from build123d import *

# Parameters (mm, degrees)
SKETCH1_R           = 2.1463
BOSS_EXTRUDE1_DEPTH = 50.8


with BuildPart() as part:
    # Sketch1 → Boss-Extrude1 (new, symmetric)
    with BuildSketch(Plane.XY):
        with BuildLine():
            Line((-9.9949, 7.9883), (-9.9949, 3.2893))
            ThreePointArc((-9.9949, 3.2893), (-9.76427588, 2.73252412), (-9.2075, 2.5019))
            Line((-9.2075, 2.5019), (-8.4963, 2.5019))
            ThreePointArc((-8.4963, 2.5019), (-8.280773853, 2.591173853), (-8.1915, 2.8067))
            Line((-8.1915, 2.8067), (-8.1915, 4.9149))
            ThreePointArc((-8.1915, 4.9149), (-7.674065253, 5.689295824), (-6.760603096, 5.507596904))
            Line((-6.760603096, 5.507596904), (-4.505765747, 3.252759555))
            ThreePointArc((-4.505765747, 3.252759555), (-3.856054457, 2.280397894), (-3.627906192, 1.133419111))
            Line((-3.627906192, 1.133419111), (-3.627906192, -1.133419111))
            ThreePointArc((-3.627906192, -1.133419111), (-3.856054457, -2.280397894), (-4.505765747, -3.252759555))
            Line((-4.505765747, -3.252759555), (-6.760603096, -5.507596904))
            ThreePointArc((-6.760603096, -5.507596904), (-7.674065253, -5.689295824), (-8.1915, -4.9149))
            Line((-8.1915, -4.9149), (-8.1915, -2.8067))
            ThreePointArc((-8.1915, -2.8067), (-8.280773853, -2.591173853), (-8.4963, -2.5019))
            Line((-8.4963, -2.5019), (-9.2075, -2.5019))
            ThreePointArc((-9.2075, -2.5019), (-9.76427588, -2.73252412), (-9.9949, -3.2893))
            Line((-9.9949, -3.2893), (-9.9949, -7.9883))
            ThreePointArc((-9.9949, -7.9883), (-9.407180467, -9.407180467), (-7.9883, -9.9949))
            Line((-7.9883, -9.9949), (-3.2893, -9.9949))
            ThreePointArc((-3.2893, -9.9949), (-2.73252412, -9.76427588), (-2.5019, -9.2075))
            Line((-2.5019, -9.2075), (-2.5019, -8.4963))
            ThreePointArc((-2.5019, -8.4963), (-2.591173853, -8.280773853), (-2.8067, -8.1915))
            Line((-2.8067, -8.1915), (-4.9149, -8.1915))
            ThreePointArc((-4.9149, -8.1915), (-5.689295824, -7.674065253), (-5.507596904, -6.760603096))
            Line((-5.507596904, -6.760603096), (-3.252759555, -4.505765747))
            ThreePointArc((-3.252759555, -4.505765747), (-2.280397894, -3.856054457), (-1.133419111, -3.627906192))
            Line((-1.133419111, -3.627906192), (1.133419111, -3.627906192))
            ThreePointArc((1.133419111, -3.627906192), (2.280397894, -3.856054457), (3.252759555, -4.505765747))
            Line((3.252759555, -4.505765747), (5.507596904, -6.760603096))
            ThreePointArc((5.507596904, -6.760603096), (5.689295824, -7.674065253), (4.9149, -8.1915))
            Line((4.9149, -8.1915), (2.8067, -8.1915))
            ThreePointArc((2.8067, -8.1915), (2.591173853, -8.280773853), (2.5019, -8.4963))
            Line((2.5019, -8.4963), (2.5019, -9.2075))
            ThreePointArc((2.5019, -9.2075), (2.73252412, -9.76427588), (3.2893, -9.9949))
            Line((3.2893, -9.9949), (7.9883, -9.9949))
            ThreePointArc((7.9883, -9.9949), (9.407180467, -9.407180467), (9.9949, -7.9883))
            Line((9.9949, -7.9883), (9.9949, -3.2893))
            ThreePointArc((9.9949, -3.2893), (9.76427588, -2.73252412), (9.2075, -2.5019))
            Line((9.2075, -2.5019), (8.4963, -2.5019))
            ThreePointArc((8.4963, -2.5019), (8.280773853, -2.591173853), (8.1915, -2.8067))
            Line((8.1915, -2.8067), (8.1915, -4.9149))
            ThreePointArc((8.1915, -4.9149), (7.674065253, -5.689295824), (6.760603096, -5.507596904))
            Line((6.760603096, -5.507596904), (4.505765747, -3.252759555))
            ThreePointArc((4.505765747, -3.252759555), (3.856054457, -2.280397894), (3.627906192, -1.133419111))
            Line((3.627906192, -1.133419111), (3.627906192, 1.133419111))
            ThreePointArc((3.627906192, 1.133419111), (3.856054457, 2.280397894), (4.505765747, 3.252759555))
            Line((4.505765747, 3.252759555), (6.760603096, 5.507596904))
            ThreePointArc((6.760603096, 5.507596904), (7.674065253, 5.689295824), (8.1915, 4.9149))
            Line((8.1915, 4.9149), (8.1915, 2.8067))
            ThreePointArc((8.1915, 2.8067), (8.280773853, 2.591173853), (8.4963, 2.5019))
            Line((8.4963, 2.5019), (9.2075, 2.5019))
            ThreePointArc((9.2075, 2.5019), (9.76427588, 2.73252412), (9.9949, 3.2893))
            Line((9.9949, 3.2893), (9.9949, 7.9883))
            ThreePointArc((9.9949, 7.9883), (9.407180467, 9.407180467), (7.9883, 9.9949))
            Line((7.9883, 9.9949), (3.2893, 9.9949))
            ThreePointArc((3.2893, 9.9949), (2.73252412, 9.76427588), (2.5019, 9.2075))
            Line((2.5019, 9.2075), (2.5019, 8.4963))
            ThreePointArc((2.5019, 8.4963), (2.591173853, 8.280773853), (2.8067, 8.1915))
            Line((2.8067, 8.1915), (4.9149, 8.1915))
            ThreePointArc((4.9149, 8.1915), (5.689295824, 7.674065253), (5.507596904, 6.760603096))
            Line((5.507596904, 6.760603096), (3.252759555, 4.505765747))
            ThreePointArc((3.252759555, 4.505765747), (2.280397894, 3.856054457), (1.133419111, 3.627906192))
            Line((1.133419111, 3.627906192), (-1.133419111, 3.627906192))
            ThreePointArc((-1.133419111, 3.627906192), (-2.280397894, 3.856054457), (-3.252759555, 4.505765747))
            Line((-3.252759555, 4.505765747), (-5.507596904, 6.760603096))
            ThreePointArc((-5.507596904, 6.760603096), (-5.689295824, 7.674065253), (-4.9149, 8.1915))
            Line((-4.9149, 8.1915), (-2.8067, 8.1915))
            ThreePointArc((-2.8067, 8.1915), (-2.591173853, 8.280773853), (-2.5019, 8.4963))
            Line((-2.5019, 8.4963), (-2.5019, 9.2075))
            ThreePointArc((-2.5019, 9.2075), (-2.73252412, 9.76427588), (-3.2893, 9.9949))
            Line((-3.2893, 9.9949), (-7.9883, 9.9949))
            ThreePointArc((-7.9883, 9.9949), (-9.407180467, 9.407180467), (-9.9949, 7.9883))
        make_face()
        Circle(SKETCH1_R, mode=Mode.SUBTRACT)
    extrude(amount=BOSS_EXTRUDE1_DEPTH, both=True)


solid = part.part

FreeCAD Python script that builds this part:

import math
import FreeCAD as App
import Part
import Sketcher

V = App.Vector
Q = App.Units.Quantity

doc = App.newDocument("Part")
params = doc.addObject("Spreadsheet::Sheet", "Params")
for row, (alias, value) in enumerate([
    ("sketch1_diameter", "0.169 in"),
    ("sketch1_radius", "0.031 in"),
    ("sketch1_radius2", "0.012 in"),
    ("sketch1_radius3", "0.033 in"),
    ("sketch1_radius4", "0.118 in"),
    ("pad1_length", "4 in"),
], start=1):
    params.set(f"A{row}", alias)
    params.set(f"B{row}", "=" + value)
    params.setAlias(f"B{row}", alias)

body = doc.addObject("PartDesign::Body", "Body")

# Sketch on XY plane
sketch1 = body.newObject("Sketcher::SketchObject", "Sketch")
sketch1.AttachmentSupport = (doc.getObject("XY_Plane"), [""])
sketch1.MapMode = "FlatFace"
sketch1.addGeometry(Part.LineSegment(V(-9.9949, 7.9883, 0), V(-9.9949, 3.2893, 0)), False)
sketch1.addGeometry(Part.ArcOfCircle(Part.Circle(V(-9.2075, 3.2893, 0), V(0, 0, 1), 0.7874), math.radians(180), math.radians(270)), False)
sketch1.addGeometry(Part.LineSegment(V(-9.2075, 2.5019, 0), V(-8.4963, 2.5019, 0)), False)
sketch1.addGeometry(Part.ArcOfCircle(Part.Circle(V(-8.4963, 2.8067, 0), V(0, 0, 1), 0.3048), math.radians(-90), math.radians(0)), False)
sketch1.addGeometry(Part.LineSegment(V(-8.1915, 2.8067, 0), V(-8.1915, 4.9149, 0)), False)
sketch1.addGeometry(Part.ArcOfCircle(Part.Circle(V(-7.3533, 4.9149, 0), V(0, 0, 1), 0.8382), math.radians(45), math.radians(180)), False)
sketch1.addGeometry(Part.LineSegment(V(-6.760603, 5.507597, 0), V(-4.505766, 3.25276, 0)), False)
sketch1.addGeometry(Part.ArcOfCircle(Part.Circle(V(-6.625106, 1.133419, 0), V(0, 0, 1), 2.9972), math.radians(0), math.radians(45)), False)
sketch1.addGeometry(Part.LineSegment(V(-3.627906, 1.133419, 0), V(-3.627906, -1.133419, 0)), False)
sketch1.addGeometry(Part.ArcOfCircle(Part.Circle(V(-6.625106, -1.133419, 0), V(0, 0, 1), 2.9972), math.radians(-45), math.radians(0)), False)
sketch1.addGeometry(Part.LineSegment(V(-4.505766, -3.25276, 0), V(-6.760603, -5.507597, 0)), False)
sketch1.addGeometry(Part.ArcOfCircle(Part.Circle(V(-7.3533, -4.9149, 0), V(0, 0, 1), 0.8382), math.radians(180), math.radians(315)), False)
sketch1.addGeometry(Part.LineSegment(V(-8.1915, -4.9149, 0), V(-8.1915, -2.8067, 0)), False)
sketch1.addGeometry(Part.ArcOfCircle(Part.Circle(V(-8.4963, -2.8067, 0), V(0, 0, 1), 0.3048), math.radians(0), math.radians(90)), False)
sketch1.addGeometry(Part.LineSegment(V(-8.4963, -2.5019, 0), V(-9.2075, -2.5019, 0)), False)
sketch1.addGeometry(Part.ArcOfCircle(Part.Circle(V(-9.2075, -3.2893, 0), V(0, 0, 1), 0.7874), math.radians(90), math.radians(180)), False)
sketch1.addGeometry(Part.LineSegment(V(-9.9949, -3.2893, 0), V(-9.9949, -7.9883, 0)), False)
sketch1.addGeometry(Part.ArcOfCircle(Part.Circle(V(-7.9883, -7.9883, 0), V(0, 0, 1), 2.0066), math.radians(180), math.radians(270)), False)
sketch1.addGeometry(Part.LineSegment(V(-7.9883, -9.9949, 0), V(-3.2893, -9.9949, 0)), False)
sketch1.addGeometry(Part.ArcOfCircle(Part.Circle(V(-3.2893, -9.2075, 0), V(0, 0, 1), 0.7874), math.radians(-90), math.radians(0)), False)
sketch1.addGeometry(Part.LineSegment(V(-2.5019, -9.2075, 0), V(-2.5019, -8.4963, 0)), False)
sketch1.addGeometry(Part.ArcOfCircle(Part.Circle(V(-2.8067, -8.4963, 0), V(0, 0, 1), 0.3048), math.radians(0), math.radians(90)), False)
sketch1.addGeometry(Part.LineSegment(V(-2.8067, -8.1915, 0), V(-4.9149, -8.1915, 0)), False)
sketch1.addGeometry(Part.ArcOfCircle(Part.Circle(V(-4.9149, -7.3533, 0), V(0, 0, 1), 0.8382), math.radians(135), math.radians(270)), False)
sketch1.addGeometry(Part.LineSegment(V(-5.507597, -6.760603, 0), V(-3.25276, -4.505766, 0)), False)
sketch1.addGeometry(Part.ArcOfCircle(Part.Circle(V(-1.133419, -6.625106, 0), V(0, 0, 1), 2.9972), math.radians(90), math.radians(135)), False)
sketch1.addGeometry(Part.LineSegment(V(-1.133419, -3.627906, 0), V(1.133419, -3.627906, 0)), False)
sketch1.addGeometry(Part.ArcOfCircle(Part.Circle(V(1.133419, -6.625106, 0), V(0, 0, 1), 2.9972), math.radians(45), math.radians(90)), False)
sketch1.addGeometry(Part.LineSegment(V(3.25276, -4.505766, 0), V(5.507597, -6.760603, 0)), False)
sketch1.addGeometry(Part.ArcOfCircle(Part.Circle(V(4.9149, -7.3533, 0), V(0, 0, 1), 0.8382), math.radians(-90), math.radians(45)), False)
sketch1.addGeometry(Part.LineSegment(V(4.9149, -8.1915, 0), V(2.8067, -8.1915, 0)), False)
sketch1.addGeometry(Part.ArcOfCircle(Part.Circle(V(2.8067, -8.4963, 0), V(0, 0, 1), 0.3048), math.radians(90), math.radians(180)), False)
sketch1.addGeometry(Part.LineSegment(V(2.5019, -8.4963, 0), V(2.5019, -9.2075, 0)), False)
sketch1.addGeometry(Part.ArcOfCircle(Part.Circle(V(3.2893, -9.2075, 0), V(0, 0, 1), 0.7874), math.radians(180), math.radians(270)), False)
sketch1.addGeometry(Part.LineSegment(V(3.2893, -9.9949, 0), V(7.9883, -9.9949, 0)), False)
sketch1.addGeometry(Part.ArcOfCircle(Part.Circle(V(7.9883, -7.9883, 0), V(0, 0, 1), 2.0066), math.radians(-90), math.radians(0)), False)
sketch1.addGeometry(Part.LineSegment(V(9.9949, -7.9883, 0), V(9.9949, -3.2893, 0)), False)
sketch1.addGeometry(Part.ArcOfCircle(Part.Circle(V(9.2075, -3.2893, 0), V(0, 0, 1), 0.7874), math.radians(0), math.radians(90)), False)
sketch1.addGeometry(Part.LineSegment(V(9.2075, -2.5019, 0), V(8.4963, -2.5019, 0)), False)
sketch1.addGeometry(Part.ArcOfCircle(Part.Circle(V(8.4963, -2.8067, 0), V(0, 0, 1), 0.3048), math.radians(90), math.radians(180)), False)
sketch1.addGeometry(Part.LineSegment(V(8.1915, -2.8067, 0), V(8.1915, -4.9149, 0)), False)
sketch1.addGeometry(Part.ArcOfCircle(Part.Circle(V(7.3533, -4.9149, 0), V(0, 0, 1), 0.8382), math.radians(-135), math.radians(0)), False)
sketch1.addGeometry(Part.LineSegment(V(6.760603, -5.507597, 0), V(4.505766, -3.25276, 0)), False)
sketch1.addGeometry(Part.ArcOfCircle(Part.Circle(V(6.625106, -1.133419, 0), V(0, 0, 1), 2.9972), math.radians(180), math.radians(225)), False)
sketch1.addGeometry(Part.LineSegment(V(3.627906, -1.133419, 0), V(3.627906, 1.133419, 0)), False)
sketch1.addGeometry(Part.ArcOfCircle(Part.Circle(V(6.625106, 1.133419, 0), V(0, 0, 1), 2.9972), math.radians(135), math.radians(180)), False)
sketch1.addGeometry(Part.LineSegment(V(4.505766, 3.25276, 0), V(6.760603, 5.507597, 0)), False)
sketch1.addGeometry(Part.ArcOfCircle(Part.Circle(V(7.3533, 4.9149, 0), V(0, 0, 1), 0.8382), math.radians(0), math.radians(135)), False)
sketch1.addGeometry(Part.LineSegment(V(8.1915, 4.9149, 0), V(8.1915, 2.8067, 0)), False)
sketch1.addGeometry(Part.ArcOfCircle(Part.Circle(V(8.4963, 2.8067, 0), V(0, 0, 1), 0.3048), math.radians(180), math.radians(270)), False)
sketch1.addGeometry(Part.LineSegment(V(8.4963, 2.5019, 0), V(9.2075, 2.5019, 0)), False)
sketch1.addGeometry(Part.ArcOfCircle(Part.Circle(V(9.2075, 3.2893, 0), V(0, 0, 1), 0.7874), math.radians(-90), math.radians(0)), False)
sketch1.addGeometry(Part.LineSegment(V(9.9949, 3.2893, 0), V(9.9949, 7.9883, 0)), False)
sketch1.addGeometry(Part.ArcOfCircle(Part.Circle(V(7.9883, 7.9883, 0), V(0, 0, 1), 2.0066), math.radians(0), math.radians(90)), False)
sketch1.addGeometry(Part.LineSegment(V(7.9883, 9.9949, 0), V(3.2893, 9.9949, 0)), False)
sketch1.addGeometry(Part.ArcOfCircle(Part.Circle(V(3.2893, 9.2075, 0), V(0, 0, 1), 0.7874), math.radians(90), math.radians(180)), False)
sketch1.addGeometry(Part.LineSegment(V(2.5019, 9.2075, 0), V(2.5019, 8.4963, 0)), False)
sketch1.addGeometry(Part.ArcOfCircle(Part.Circle(V(2.8067, 8.4963, 0), V(0, 0, 1), 0.3048), math.radians(180), math.radians(270)), False)
sketch1.addGeometry(Part.LineSegment(V(2.8067, 8.1915, 0), V(4.9149, 8.1915, 0)), False)
sketch1.addGeometry(Part.ArcOfCircle(Part.Circle(V(4.9149, 7.3533, 0), V(0, 0, 1), 0.8382), math.radians(-45), math.radians(90)), False)
sketch1.addGeometry(Part.LineSegment(V(5.507597, 6.760603, 0), V(3.25276, 4.505766, 0)), False)
sketch1.addGeometry(Part.ArcOfCircle(Part.Circle(V(1.133419, 6.625106, 0), V(0, 0, 1), 2.9972), math.radians(-90), math.radians(-45)), False)
sketch1.addGeometry(Part.LineSegment(V(1.133419, 3.627906, 0), V(-1.133419, 3.627906, 0)), False)
sketch1.addGeometry(Part.ArcOfCircle(Part.Circle(V(-1.133419, 6.625106, 0), V(0, 0, 1), 2.9972), math.radians(-135), math.radians(-90)), False)
sketch1.addGeometry(Part.LineSegment(V(-3.25276, 4.505766, 0), V(-5.507597, 6.760603, 0)), False)
sketch1.addGeometry(Part.ArcOfCircle(Part.Circle(V(-4.9149, 7.3533, 0), V(0, 0, 1), 0.8382), math.radians(90), math.radians(225)), False)
sketch1.addGeometry(Part.LineSegment(V(-4.9149, 8.1915, 0), V(-2.8067, 8.1915, 0)), False)
sketch1.addGeometry(Part.ArcOfCircle(Part.Circle(V(-2.8067, 8.4963, 0), V(0, 0, 1), 0.3048), math.radians(-90), math.radians(0)), False)
sketch1.addGeometry(Part.LineSegment(V(-2.5019, 8.4963, 0), V(-2.5019, 9.2075, 0)), False)
sketch1.addGeometry(Part.ArcOfCircle(Part.Circle(V(-3.2893, 9.2075, 0), V(0, 0, 1), 0.7874), math.radians(0), math.radians(90)), False)
sketch1.addGeometry(Part.LineSegment(V(-3.2893, 9.9949, 0), V(-7.9883, 9.9949, 0)), False)
sketch1.addGeometry(Part.ArcOfCircle(Part.Circle(V(-7.9883, 7.9883, 0), V(0, 0, 1), 2.0066), math.radians(90), math.radians(180)), False)
sketch1.addGeometry(Part.Circle(V(0, 0, 0), V(0, 0, 1), 2.1463), False)
sketch1.addConstraint(Sketcher.Constraint("Tangent", 0, 2, 1, 1))
sketch1.addConstraint(Sketcher.Constraint("Tangent", 1, 2, 2, 1))
sketch1.addConstraint(Sketcher.Constraint("Tangent", 2, 2, 3, 1))
sketch1.addConstraint(Sketcher.Constraint("Tangent", 3, 2, 4, 1))
sketch1.addConstraint(Sketcher.Constraint("Tangent", 4, 2, 5, 2))
sketch1.addConstraint(Sketcher.Constraint("Tangent", 5, 1, 6, 1))
sketch1.addConstraint(Sketcher.Constraint("Tangent", 6, 2, 7, 2))
sketch1.addConstraint(Sketcher.Constraint("Tangent", 7, 1, 8, 1))
sketch1.addConstraint(Sketcher.Constraint("Tangent", 8, 2, 9, 2))
sketch1.addConstraint(Sketcher.Constraint("Tangent", 9, 1, 10, 1))
sketch1.addConstraint(Sketcher.Constraint("Tangent", 10, 2, 11, 2))
sketch1.addConstraint(Sketcher.Constraint("Tangent", 11, 1, 12, 1))
sketch1.addConstraint(Sketcher.Constraint("Tangent", 12, 2, 13, 1))
sketch1.addConstraint(Sketcher.Constraint("Tangent", 13, 2, 14, 1))
sketch1.addConstraint(Sketcher.Constraint("Tangent", 14, 2, 15, 1))
sketch1.addConstraint(Sketcher.Constraint("Tangent", 15, 2, 16, 1))
sketch1.addConstraint(Sketcher.Constraint("Tangent", 16, 2, 17, 1))
sketch1.addConstraint(Sketcher.Constraint("Tangent", 17, 2, 18, 1))
sketch1.addConstraint(Sketcher.Constraint("Tangent", 18, 2, 19, 1))
sketch1.addConstraint(Sketcher.Constraint("Tangent", 19, 2, 20, 1))
sketch1.addConstraint(Sketcher.Constraint("Tangent", 20, 2, 21, 1))
sketch1.addConstraint(Sketcher.Constraint("Tangent", 21, 2, 22, 1))
sketch1.addConstraint(Sketcher.Constraint("Tangent", 22, 2, 23, 2))
sketch1.addConstraint(Sketcher.Constraint("Tangent", 23, 1, 24, 1))
sketch1.addConstraint(Sketcher.Constraint("Tangent", 24, 2, 25, 2))
sketch1.addConstraint(Sketcher.Constraint("Tangent", 25, 1, 26, 1))
sketch1.addConstraint(Sketcher.Constraint("Tangent", 26, 2, 27, 2))
sketch1.addConstraint(Sketcher.Constraint("Tangent", 27, 1, 28, 1))
sketch1.addConstraint(Sketcher.Constraint("Tangent", 28, 2, 29, 2))
sketch1.addConstraint(Sketcher.Constraint("Tangent", 29, 1, 30, 1))
sketch1.addConstraint(Sketcher.Constraint("Tangent", 30, 2, 31, 1))
sketch1.addConstraint(Sketcher.Constraint("Tangent", 31, 2, 32, 1))
sketch1.addConstraint(Sketcher.Constraint("Tangent", 32, 2, 33, 1))
sketch1.addConstraint(Sketcher.Constraint("Tangent", 33, 2, 34, 1))
sketch1.addConstraint(Sketcher.Constraint("Tangent", 34, 2, 35, 1))
sketch1.addConstraint(Sketcher.Constraint("Tangent", 35, 2, 36, 1))
sketch1.addConstraint(Sketcher.Constraint("Tangent", 36, 2, 37, 1))
sketch1.addConstraint(Sketcher.Constraint("Tangent", 37, 2, 38, 1))
sketch1.addConstraint(Sketcher.Constraint("Tangent", 38, 2, 39, 1))
sketch1.addConstraint(Sketcher.Constraint("Tangent", 39, 2, 40, 1))
sketch1.addConstraint(Sketcher.Constraint("Tangent", 40, 2, 41, 2))
sketch1.addConstraint(Sketcher.Constraint("Tangent", 41, 1, 42, 1))
sketch1.addConstraint(Sketcher.Constraint("Tangent", 42, 2, 43, 2))
sketch1.addConstraint(Sketcher.Constraint("Tangent", 43, 1, 44, 1))
sketch1.addConstraint(Sketcher.Constraint("Tangent", 44, 2, 45, 2))
sketch1.addConstraint(Sketcher.Constraint("Tangent", 45, 1, 46, 1))
sketch1.addConstraint(Sketcher.Constraint("Tangent", 46, 2, 47, 2))
sketch1.addConstraint(Sketcher.Constraint("Tangent", 47, 1, 48, 1))
sketch1.addConstraint(Sketcher.Constraint("Tangent", 48, 2, 49, 1))
sketch1.addConstraint(Sketcher.Constraint("Tangent", 49, 2, 50, 1))
sketch1.addConstraint(Sketcher.Constraint("Tangent", 50, 2, 51, 1))
sketch1.addConstraint(Sketcher.Constraint("Tangent", 51, 2, 52, 1))
sketch1.addConstraint(Sketcher.Constraint("Tangent", 52, 2, 53, 1))
sketch1.addConstraint(Sketcher.Constraint("Tangent", 53, 2, 54, 1))
sketch1.addConstraint(Sketcher.Constraint("Tangent", 54, 2, 55, 1))
sketch1.addConstraint(Sketcher.Constraint("Tangent", 55, 2, 56, 1))
sketch1.addConstraint(Sketcher.Constraint("Tangent", 56, 2, 57, 1))
sketch1.addConstraint(Sketcher.Constraint("Tangent", 57, 2, 58, 1))
sketch1.addConstraint(Sketcher.Constraint("Tangent", 58, 2, 59, 2))
sketch1.addConstraint(Sketcher.Constraint("Tangent", 59, 1, 60, 1))
sketch1.addConstraint(Sketcher.Constraint("Tangent", 60, 2, 61, 2))
sketch1.addConstraint(Sketcher.Constraint("Tangent", 61, 1, 62, 1))
sketch1.addConstraint(Sketcher.Constraint("Tangent", 62, 2, 63, 2))
sketch1.addConstraint(Sketcher.Constraint("Tangent", 63, 1, 64, 1))
sketch1.addConstraint(Sketcher.Constraint("Tangent", 64, 2, 65, 2))
sketch1.addConstraint(Sketcher.Constraint("Tangent", 65, 1, 66, 1))
sketch1.addConstraint(Sketcher.Constraint("Tangent", 66, 2, 67, 1))
sketch1.addConstraint(Sketcher.Constraint("Tangent", 67, 2, 68, 1))
sketch1.addConstraint(Sketcher.Constraint("Tangent", 68, 2, 69, 1))
sketch1.addConstraint(Sketcher.Constraint("Tangent", 69, 2, 70, 1))
sketch1.addConstraint(Sketcher.Constraint("Tangent", 70, 2, 71, 1))
sketch1.addConstraint(Sketcher.Constraint("Tangent", 71, 2, 0, 1))
sketch1.addConstraint(Sketcher.Constraint("Vertical", 0))
sketch1.addConstraint(Sketcher.Constraint("Horizontal", 2))
sketch1.addConstraint(Sketcher.Constraint("Vertical", 4))
sketch1.addConstraint(Sketcher.Constraint("Vertical", 8))
sketch1.addConstraint(Sketcher.Constraint("Vertical", 12))
sketch1.addConstraint(Sketcher.Constraint("Horizontal", 14))
sketch1.addConstraint(Sketcher.Constraint("Vertical", 16))
sketch1.addConstraint(Sketcher.Constraint("Horizontal", 18))
sketch1.addConstraint(Sketcher.Constraint("Vertical", 20))
sketch1.addConstraint(Sketcher.Constraint("Horizontal", 22))
sketch1.addConstraint(Sketcher.Constraint("Horizontal", 26))
sketch1.addConstraint(Sketcher.Constraint("Horizontal", 30))
sketch1.addConstraint(Sketcher.Constraint("Vertical", 32))
sketch1.addConstraint(Sketcher.Constraint("Horizontal", 34))
sketch1.addConstraint(Sketcher.Constraint("Vertical", 36))
sketch1.addConstraint(Sketcher.Constraint("Horizontal", 38))
sketch1.addConstraint(Sketcher.Constraint("Vertical", 40))
sketch1.addConstraint(Sketcher.Constraint("Vertical", 44))
sketch1.addConstraint(Sketcher.Constraint("Vertical", 48))
sketch1.addConstraint(Sketcher.Constraint("Horizontal", 50))
sketch1.addConstraint(Sketcher.Constraint("Vertical", 52))
sketch1.addConstraint(Sketcher.Constraint("Horizontal", 54))
sketch1.addConstraint(Sketcher.Constraint("Vertical", 56))
sketch1.addConstraint(Sketcher.Constraint("Horizontal", 58))
sketch1.addConstraint(Sketcher.Constraint("Horizontal", 62))
sketch1.addConstraint(Sketcher.Constraint("Horizontal", 66))
sketch1.addConstraint(Sketcher.Constraint("Vertical", 68))
sketch1.addConstraint(Sketcher.Constraint("Horizontal", 70))
sketch1.addConstraint(Sketcher.Constraint("Coincident", 72, 3, -1, 1))
sketch1.addConstraint(Sketcher.Constraint("Equal", 7, 9))
sketch1.addConstraint(Sketcher.Constraint("Equal", 5, 11))
sketch1.addConstraint(Sketcher.Constraint("Equal", 3, 13))
sketch1.addConstraint(Sketcher.Constraint("Equal", 1, 15))
sketch1.addConstraint(Sketcher.Constraint("Equal", 15, 19))
sketch1.addConstraint(Sketcher.Constraint("Equal", 13, 21))
sketch1.addConstraint(Sketcher.Constraint("Equal", 11, 23))
sketch1.addConstraint(Sketcher.Constraint("Equal", 9, 25))
sketch1.addConstraint(Sketcher.Constraint("Equal", 25, 27))
sketch1.addConstraint(Sketcher.Constraint("Equal", 23, 29))
sketch1.addConstraint(Sketcher.Constraint("Equal", 21, 31))
sketch1.addConstraint(Sketcher.Constraint("Equal", 19, 33))
sketch1.addConstraint(Sketcher.Constraint("Equal", 17, 35))
sketch1.addConstraint(Sketcher.Constraint("Equal", 33, 37))
sketch1.addConstraint(Sketcher.Constraint("Equal", 31, 39))
sketch1.addConstraint(Sketcher.Constraint("Equal", 29, 41))
sketch1.addConstraint(Sketcher.Constraint("Equal", 27, 43))
sketch1.addConstraint(Sketcher.Constraint("Equal", 43, 45))
sketch1.addConstraint(Sketcher.Constraint("Equal", 41, 47))
sketch1.addConstraint(Sketcher.Constraint("Equal", 39, 49))
sketch1.addConstraint(Sketcher.Constraint("Equal", 37, 51))
sketch1.addConstraint(Sketcher.Constraint("Equal", 35, 53))
sketch1.addConstraint(Sketcher.Constraint("Equal", 51, 55))
sketch1.addConstraint(Sketcher.Constraint("Equal", 49, 57))
sketch1.addConstraint(Sketcher.Constraint("Equal", 47, 59))
sketch1.addConstraint(Sketcher.Constraint("Equal", 45, 61))
sketch1.addConstraint(Sketcher.Constraint("Equal", 61, 63))
sketch1.addConstraint(Sketcher.Constraint("Equal", 59, 65))
sketch1.addConstraint(Sketcher.Constraint("Equal", 57, 67))
sketch1.addConstraint(Sketcher.Constraint("Equal", 55, 69))
sketch1.addConstraint(Sketcher.Constraint("Equal", 53, 71))
sketch1.addConstraint(Sketcher.Constraint("Symmetric", 1, 3, 37, 3, -1, 1))
sketch1.addConstraint(Sketcher.Constraint("Symmetric", 5, 3, 41, 3, -1, 1))
sketch1.addConstraint(Sketcher.Constraint("Symmetric", 7, 3, 43, 3, -1, 1))
sketch1.addConstraint(Sketcher.Constraint("Symmetric", 11, 3, 47, 3, -1, 1))
sketch1.addConstraint(Sketcher.Constraint("Symmetric", 15, 3, 51, 3, -1, 1))
sketch1.addConstraint(Sketcher.Constraint("Symmetric", 19, 3, 55, 3, -1, 1))
sketch1.addConstraint(Sketcher.Constraint("Symmetric", 23, 3, 59, 3, -1, 1))
sketch1.addConstraint(Sketcher.Constraint("Symmetric", 25, 3, 61, 3, -1, 1))
sketch1.addConstraint(Sketcher.Constraint("Symmetric", 29, 3, 65, 3, -1, 1))
sketch1.addConstraint(Sketcher.Constraint("Symmetric", 33, 3, 69, 3, -1, 1))
sketch1.addConstraint(Sketcher.Constraint("Symmetric", 23, 3, 29, 3, -2))
sketch1.addConstraint(Sketcher.Constraint("Symmetric", 19, 3, 33, 3, -2))
sketch1.addConstraint(Sketcher.Constraint("Symmetric", 15, 3, 37, 3, -2))
sketch1.addConstraint(Sketcher.Constraint("Symmetric", 11, 3, 41, 3, -2))
sketch1.addConstraint(Sketcher.Constraint("Perpendicular", 6, 10))
sketch1.addConstraint(Sketcher.Constraint("Parallel", 10, 24))
sketch1.addConstraint(Sketcher.Constraint("Perpendicular", 24, 28))
sketch1.addConstraint(Sketcher.Constraint("Perpendicular", 42, 46))
sketch1.addConstraint(Sketcher.Constraint("Perpendicular", 60, 64))
sketch1.addConstraint(Sketcher.Constraint("Horizontal", 9, 3, 43, 3))
sketch1.addConstraint(Sketcher.Constraint("Equal", 70, 0))
sketch1.addConstraint(Sketcher.Constraint("Equal", 66, 4))
sketch1.addConstraint(Sketcher.Constraint("Equal", 62, 8))
sketch1.addConstraint(Sketcher.Constraint("Equal", 50, 20))
sketch1.addConstraint(Sketcher.Constraint("Equal", 10, 24))
sketch1.addConstraint(Sketcher.Constraint("Diameter", 72, Q("0.169 in")))
sketch1.addConstraint(Sketcher.Constraint("Radius", 1, Q("0.031 in")))
sketch1.addConstraint(Sketcher.Constraint("Radius", 3, Q("0.012 in")))
sketch1.addConstraint(Sketcher.Constraint("Radius", 5, Q("0.033 in")))
sketch1.addConstraint(Sketcher.Constraint("Radius", 7, Q("0.118 in")))
sketch1.addConstraint(Sketcher.Constraint("Radius", 17, Q("0.079 in")))
sketch1.addConstraint(Sketcher.Constraint("DistanceX", 2, 1, 2, 2, Q("0.028 in")))
sketch1.addConstraint(Sketcher.Constraint("DistanceX", 18, 1, 18, 2, Q("0.185 in")))
sketch1.addConstraint(Sketcher.Constraint("DistanceX", 22, 2, 22, 1, Q("0.083 in")))
sketch1.addConstraint(Sketcher.Constraint("DistanceX", 1, 3, -1, 1, Q("0.3625 in")))
sketch1.addConstraint(Sketcher.Constraint("DistanceX", 26, 1, 26, 2, Q("2.266838 mm")))
sketch1.setExpression("Constraints[157]", "Params.sketch1_diameter")
sketch1.setExpression("Constraints[158]", "Params.sketch1_radius")
sketch1.setExpression("Constraints[159]", "Params.sketch1_radius2")
sketch1.setExpression("Constraints[160]", "Params.sketch1_radius3")
sketch1.setExpression("Constraints[161]", "Params.sketch1_radius4")
pad1 = body.newObject("PartDesign::Pad", "Pad")
pad1.Profile = sketch1
pad1.setExpression("Length", "Params.pad1_length")
pad1.Midplane = True

doc.recompute()
